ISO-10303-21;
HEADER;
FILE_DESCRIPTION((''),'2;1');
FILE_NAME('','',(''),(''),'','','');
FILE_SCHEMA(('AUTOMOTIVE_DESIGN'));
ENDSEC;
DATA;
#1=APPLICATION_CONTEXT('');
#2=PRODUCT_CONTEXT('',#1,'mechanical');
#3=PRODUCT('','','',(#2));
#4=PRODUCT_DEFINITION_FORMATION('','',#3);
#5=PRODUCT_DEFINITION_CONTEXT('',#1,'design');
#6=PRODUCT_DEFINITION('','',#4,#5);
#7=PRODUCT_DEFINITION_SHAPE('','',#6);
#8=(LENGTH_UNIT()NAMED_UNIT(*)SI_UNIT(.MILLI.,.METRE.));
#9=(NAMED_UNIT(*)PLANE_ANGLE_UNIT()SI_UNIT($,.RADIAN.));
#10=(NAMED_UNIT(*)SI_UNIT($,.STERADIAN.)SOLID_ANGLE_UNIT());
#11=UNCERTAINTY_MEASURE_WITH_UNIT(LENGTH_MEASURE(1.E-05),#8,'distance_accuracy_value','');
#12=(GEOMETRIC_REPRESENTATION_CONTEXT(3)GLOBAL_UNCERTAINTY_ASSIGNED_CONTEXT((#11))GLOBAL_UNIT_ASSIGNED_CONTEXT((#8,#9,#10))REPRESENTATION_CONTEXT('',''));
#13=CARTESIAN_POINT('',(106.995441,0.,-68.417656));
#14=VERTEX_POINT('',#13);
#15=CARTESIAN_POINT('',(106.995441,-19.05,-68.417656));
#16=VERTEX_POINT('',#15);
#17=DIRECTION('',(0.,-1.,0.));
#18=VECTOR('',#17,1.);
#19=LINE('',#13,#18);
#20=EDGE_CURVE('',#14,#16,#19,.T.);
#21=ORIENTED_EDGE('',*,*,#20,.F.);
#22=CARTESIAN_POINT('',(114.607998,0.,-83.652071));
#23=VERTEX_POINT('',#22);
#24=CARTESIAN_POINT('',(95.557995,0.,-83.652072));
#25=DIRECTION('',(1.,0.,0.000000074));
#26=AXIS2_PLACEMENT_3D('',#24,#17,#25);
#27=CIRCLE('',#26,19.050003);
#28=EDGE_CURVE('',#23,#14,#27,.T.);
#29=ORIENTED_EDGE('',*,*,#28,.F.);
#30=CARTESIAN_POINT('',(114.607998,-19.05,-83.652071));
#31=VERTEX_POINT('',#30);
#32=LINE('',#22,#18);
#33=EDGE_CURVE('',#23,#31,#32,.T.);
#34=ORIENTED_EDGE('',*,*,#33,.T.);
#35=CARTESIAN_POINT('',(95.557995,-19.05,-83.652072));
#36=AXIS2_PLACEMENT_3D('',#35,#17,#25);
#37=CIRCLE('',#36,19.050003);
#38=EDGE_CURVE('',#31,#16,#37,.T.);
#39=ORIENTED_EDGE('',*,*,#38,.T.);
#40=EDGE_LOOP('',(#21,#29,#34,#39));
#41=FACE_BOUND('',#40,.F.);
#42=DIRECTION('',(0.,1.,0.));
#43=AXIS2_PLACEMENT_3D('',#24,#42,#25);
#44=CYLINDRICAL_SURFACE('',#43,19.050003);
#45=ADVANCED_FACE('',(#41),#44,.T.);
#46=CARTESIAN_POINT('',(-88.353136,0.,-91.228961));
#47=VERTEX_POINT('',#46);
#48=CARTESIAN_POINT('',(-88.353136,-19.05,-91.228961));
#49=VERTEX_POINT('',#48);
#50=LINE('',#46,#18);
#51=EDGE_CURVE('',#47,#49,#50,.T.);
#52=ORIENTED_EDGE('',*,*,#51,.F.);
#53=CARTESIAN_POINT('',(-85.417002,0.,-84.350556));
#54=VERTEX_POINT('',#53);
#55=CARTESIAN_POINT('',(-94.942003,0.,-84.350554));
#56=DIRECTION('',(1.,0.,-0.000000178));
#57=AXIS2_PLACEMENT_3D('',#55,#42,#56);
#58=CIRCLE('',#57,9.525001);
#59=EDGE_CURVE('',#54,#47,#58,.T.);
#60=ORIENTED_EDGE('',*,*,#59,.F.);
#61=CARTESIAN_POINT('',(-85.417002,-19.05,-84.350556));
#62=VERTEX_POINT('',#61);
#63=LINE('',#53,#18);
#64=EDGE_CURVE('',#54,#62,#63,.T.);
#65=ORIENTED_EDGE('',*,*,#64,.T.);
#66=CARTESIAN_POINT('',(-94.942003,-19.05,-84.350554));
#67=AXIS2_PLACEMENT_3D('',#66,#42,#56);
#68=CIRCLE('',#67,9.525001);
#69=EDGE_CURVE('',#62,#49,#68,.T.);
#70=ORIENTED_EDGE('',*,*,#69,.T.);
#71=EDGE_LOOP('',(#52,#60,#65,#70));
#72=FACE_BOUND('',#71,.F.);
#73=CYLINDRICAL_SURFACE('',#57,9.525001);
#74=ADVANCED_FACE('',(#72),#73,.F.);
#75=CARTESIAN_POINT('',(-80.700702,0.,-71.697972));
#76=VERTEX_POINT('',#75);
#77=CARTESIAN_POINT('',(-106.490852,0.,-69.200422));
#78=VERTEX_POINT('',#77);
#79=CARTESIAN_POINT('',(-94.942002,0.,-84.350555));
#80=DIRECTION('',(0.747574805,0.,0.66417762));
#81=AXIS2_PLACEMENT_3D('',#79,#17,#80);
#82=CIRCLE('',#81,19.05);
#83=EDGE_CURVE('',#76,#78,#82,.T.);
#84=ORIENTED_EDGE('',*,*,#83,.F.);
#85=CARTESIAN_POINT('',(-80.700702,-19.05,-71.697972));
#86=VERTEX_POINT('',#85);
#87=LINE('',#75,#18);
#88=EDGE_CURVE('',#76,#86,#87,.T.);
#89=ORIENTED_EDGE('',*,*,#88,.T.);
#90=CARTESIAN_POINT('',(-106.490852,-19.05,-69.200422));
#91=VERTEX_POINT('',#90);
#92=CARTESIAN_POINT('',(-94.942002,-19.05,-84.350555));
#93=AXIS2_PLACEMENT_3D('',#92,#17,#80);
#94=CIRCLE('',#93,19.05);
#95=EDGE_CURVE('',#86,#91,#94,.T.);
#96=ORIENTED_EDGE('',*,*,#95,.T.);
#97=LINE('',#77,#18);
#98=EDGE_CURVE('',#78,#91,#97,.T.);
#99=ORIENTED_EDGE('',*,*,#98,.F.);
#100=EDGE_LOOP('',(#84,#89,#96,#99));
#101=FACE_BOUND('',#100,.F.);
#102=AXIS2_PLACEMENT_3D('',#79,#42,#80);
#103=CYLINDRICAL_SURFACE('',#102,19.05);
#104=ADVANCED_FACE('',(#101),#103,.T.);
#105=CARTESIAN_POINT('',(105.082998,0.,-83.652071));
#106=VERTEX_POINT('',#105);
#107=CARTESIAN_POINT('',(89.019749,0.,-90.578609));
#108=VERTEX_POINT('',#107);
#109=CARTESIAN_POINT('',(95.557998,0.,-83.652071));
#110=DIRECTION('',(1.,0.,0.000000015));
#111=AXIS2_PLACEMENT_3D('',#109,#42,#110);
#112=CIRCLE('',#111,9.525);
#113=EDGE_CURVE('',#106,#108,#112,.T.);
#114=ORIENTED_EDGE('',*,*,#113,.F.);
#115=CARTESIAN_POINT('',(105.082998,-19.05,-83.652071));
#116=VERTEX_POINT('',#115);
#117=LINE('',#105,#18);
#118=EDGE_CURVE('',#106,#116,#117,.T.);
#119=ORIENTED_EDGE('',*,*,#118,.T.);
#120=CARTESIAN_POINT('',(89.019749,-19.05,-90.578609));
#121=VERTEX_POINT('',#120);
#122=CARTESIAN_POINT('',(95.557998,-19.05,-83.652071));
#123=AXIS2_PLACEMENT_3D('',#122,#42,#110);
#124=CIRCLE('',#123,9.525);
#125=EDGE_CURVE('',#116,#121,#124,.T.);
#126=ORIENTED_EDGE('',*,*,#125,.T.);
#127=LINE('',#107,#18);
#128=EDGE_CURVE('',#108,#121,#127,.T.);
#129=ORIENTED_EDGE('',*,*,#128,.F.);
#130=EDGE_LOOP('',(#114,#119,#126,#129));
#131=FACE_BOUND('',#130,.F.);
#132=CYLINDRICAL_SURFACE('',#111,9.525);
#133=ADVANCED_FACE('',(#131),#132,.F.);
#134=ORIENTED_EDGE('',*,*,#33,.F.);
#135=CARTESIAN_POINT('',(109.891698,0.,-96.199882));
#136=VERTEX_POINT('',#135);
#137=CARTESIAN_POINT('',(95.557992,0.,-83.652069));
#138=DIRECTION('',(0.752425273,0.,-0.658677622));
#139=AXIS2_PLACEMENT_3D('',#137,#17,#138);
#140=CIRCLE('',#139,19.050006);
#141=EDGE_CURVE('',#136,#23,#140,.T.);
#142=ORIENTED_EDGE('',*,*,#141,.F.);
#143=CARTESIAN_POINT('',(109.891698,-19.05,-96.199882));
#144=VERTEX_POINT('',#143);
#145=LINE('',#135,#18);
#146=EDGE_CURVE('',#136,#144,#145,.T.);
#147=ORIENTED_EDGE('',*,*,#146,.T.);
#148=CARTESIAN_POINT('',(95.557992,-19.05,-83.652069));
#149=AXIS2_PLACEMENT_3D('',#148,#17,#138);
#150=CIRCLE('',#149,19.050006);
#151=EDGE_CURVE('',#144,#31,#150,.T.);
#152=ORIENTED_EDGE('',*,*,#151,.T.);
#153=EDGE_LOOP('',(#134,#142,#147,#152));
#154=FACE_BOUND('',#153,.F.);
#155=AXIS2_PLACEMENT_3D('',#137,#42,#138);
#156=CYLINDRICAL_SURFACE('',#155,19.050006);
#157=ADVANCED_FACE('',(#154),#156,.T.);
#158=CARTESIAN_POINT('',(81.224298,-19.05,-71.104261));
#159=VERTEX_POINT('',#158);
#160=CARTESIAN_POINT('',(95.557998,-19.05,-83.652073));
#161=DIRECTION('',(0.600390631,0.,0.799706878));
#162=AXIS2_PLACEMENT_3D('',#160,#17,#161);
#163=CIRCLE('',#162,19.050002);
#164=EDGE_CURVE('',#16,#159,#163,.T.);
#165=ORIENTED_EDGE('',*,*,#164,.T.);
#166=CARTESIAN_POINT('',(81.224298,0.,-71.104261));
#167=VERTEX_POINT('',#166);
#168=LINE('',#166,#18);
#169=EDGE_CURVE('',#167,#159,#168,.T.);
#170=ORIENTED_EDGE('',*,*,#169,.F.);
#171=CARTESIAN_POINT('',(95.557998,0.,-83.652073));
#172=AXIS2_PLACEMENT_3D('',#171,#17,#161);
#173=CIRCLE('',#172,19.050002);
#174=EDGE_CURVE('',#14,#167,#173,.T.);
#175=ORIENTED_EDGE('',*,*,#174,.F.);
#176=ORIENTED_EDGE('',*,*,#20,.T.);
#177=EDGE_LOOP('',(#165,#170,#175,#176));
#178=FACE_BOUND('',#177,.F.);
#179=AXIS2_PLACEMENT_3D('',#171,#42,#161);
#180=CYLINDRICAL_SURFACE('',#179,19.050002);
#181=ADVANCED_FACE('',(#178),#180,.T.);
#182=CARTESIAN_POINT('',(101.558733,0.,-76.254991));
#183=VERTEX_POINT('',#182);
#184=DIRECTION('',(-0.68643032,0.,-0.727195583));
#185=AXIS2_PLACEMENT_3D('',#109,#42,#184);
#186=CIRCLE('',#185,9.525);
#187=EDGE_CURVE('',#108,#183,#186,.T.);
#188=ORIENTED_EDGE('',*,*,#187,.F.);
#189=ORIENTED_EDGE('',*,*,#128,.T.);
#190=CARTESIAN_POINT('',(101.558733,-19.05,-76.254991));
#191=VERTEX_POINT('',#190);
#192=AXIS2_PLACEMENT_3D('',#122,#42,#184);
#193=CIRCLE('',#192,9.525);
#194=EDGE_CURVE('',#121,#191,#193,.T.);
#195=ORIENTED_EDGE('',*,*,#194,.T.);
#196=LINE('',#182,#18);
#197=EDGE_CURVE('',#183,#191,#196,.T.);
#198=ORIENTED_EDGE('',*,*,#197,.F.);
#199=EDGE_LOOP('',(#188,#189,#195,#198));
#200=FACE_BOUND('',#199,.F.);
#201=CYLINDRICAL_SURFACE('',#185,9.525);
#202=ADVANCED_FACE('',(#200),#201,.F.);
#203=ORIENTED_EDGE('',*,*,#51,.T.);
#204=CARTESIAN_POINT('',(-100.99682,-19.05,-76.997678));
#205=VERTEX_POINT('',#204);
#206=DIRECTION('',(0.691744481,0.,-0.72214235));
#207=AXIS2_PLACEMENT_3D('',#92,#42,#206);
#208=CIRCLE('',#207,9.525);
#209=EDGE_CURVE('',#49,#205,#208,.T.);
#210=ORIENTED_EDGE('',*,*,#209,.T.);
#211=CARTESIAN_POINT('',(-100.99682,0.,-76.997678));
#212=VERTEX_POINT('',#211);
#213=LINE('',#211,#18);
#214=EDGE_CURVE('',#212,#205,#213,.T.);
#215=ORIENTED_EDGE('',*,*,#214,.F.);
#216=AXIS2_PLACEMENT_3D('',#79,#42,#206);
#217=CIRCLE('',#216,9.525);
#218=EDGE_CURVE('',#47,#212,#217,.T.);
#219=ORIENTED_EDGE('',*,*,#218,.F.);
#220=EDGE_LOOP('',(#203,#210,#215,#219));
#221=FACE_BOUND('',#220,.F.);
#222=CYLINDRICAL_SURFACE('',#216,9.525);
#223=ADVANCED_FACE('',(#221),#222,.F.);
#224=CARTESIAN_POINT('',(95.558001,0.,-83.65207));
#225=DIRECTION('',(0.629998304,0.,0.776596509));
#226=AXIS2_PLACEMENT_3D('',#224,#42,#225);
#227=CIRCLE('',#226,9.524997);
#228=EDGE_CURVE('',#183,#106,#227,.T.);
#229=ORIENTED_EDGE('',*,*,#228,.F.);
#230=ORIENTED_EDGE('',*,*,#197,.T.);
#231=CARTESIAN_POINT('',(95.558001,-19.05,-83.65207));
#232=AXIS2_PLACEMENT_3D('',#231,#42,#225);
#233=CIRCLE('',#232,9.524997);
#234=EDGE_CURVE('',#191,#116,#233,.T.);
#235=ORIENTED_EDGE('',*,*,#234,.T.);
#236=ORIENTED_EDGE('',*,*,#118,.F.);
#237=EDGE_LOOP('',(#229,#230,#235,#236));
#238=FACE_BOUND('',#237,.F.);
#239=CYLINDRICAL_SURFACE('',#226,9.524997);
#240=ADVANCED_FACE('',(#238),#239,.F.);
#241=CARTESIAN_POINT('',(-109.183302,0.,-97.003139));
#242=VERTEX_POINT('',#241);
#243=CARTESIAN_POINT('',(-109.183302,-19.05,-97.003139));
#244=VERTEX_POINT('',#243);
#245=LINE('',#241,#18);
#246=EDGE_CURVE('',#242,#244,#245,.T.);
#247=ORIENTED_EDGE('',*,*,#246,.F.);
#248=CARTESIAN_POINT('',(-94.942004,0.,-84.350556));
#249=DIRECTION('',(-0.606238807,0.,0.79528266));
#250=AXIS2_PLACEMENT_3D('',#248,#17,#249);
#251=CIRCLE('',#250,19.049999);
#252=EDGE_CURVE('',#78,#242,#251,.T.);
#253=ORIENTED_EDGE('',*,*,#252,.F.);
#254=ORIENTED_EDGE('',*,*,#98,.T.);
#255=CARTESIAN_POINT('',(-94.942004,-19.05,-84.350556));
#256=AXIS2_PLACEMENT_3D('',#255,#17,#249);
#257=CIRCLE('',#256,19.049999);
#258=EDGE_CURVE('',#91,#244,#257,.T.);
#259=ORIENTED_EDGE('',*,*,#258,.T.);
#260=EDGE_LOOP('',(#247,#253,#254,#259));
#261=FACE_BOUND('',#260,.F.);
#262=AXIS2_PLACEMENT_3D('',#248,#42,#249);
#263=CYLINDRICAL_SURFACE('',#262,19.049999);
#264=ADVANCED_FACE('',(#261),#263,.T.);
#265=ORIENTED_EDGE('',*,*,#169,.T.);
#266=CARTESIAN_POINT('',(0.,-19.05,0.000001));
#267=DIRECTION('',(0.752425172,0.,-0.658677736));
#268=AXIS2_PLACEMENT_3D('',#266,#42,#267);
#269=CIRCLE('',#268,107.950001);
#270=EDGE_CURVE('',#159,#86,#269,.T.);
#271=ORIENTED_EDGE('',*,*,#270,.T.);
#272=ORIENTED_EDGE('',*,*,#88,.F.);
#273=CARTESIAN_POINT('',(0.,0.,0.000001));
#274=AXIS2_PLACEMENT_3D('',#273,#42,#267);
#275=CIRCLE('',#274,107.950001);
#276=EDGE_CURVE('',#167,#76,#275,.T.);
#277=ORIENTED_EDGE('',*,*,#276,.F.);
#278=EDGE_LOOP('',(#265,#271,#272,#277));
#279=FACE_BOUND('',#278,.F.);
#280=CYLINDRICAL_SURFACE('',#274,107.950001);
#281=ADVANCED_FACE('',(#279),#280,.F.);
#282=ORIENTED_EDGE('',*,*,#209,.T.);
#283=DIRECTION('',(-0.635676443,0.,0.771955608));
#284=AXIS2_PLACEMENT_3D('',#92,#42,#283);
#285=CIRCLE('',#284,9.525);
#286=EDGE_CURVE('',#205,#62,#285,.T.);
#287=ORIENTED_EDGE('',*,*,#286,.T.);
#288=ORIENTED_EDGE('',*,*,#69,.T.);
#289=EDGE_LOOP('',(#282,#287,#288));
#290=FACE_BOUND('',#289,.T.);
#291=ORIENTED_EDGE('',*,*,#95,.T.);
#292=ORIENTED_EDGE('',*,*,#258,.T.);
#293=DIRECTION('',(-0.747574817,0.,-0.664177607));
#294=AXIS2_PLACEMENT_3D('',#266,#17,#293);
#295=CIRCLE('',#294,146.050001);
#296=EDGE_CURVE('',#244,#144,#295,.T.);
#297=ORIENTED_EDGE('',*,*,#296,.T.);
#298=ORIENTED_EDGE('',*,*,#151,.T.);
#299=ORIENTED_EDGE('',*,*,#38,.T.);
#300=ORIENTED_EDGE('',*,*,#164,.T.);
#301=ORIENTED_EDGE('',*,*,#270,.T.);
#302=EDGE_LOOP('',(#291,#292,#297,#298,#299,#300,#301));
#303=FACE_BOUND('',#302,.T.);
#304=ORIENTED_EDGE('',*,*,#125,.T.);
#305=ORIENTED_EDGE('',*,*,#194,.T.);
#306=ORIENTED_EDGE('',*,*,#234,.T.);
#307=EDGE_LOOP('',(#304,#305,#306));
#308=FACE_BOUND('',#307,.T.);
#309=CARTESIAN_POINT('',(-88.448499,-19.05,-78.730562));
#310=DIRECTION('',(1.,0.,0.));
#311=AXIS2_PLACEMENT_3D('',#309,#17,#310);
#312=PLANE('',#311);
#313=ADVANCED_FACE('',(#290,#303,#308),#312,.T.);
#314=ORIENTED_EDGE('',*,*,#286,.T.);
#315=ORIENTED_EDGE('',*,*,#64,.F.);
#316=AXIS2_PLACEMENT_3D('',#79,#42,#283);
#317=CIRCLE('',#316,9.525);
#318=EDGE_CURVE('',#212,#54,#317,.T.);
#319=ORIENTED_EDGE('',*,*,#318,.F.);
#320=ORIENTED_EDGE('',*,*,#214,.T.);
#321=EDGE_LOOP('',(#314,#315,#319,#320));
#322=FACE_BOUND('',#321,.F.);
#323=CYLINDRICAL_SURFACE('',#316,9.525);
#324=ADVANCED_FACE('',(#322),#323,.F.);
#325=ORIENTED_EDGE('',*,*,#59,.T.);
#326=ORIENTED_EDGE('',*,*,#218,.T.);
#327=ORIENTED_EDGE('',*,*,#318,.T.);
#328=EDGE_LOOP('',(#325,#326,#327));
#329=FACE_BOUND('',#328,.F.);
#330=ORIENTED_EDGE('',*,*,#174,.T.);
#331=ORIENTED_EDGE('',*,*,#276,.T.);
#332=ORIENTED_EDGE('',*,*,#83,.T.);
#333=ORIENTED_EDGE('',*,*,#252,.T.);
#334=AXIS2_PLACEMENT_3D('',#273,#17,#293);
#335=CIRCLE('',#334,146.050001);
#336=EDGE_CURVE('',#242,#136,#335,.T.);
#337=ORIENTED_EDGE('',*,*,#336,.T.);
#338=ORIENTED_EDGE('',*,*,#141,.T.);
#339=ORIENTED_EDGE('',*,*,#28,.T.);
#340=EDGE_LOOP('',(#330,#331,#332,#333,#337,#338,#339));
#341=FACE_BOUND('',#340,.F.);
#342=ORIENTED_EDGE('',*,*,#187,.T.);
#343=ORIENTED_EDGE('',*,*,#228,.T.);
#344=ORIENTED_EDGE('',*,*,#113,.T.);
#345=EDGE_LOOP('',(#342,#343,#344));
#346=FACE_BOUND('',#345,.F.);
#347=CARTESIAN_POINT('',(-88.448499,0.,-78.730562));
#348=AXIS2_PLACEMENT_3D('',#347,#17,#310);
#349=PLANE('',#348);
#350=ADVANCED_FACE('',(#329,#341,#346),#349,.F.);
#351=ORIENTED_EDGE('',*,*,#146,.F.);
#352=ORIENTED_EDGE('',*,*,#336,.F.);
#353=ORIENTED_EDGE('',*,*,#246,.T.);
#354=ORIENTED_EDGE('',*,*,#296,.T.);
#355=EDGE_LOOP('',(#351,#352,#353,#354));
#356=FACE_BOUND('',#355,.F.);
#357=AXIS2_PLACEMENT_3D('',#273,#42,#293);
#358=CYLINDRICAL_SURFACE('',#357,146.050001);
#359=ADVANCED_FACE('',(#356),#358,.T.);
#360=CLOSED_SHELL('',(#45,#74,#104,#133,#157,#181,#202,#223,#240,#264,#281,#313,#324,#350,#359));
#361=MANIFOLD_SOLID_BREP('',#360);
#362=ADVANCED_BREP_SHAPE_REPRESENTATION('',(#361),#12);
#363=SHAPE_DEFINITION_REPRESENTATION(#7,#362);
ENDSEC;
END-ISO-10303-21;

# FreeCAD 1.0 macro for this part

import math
import FreeCAD as App
import Part
import Sketcher

V = App.Vector
Q = App.Units.Quantity

doc = App.newDocument("Part")
body = doc.addObject("PartDesign::Body", "Body")

# Sketch on XZ plane
sketch1 = body.newObject("Sketcher::SketchObject", "Sketch")
sketch1.AttachmentSupport = (doc.getObject("XZ_Plane"), [""])
sketch1.MapMode = "FlatFace"
sketch1.addGeometry([
    Part.ArcOfCircle(Part.Circle(V(-95, -84, 0), V(0, 0, 1), 19), math.radians(42), math.radians(127)),  # 0
    Part.ArcOfCircle(Part.Circle(V(-95, -84, 0), V(0, 0, 1), 19), math.radians(127), math.radians(222)),  # 1
    Part.ArcOfCircle(Part.Circle(V(0, 0, 0), V(0, 0, 1), 146), math.radians(-138), math.radians(-41)),  # 2
    Part.ArcOfCircle(Part.Circle(V(96, -84, 0), V(0, 0, 1), 19), math.radians(-41), math.radians(0)),  # 3
    Part.ArcOfCircle(Part.Circle(V(96, -84, 0), V(0, 0, 1), 19), math.radians(0), math.radians(53)),  # 4
    Part.ArcOfCircle(Part.Circle(V(96, -84, 0), V(0, 0, 1), 19), math.radians(53), math.radians(139)),  # 5
    Part.ArcOfCircle(Part.Circle(V(0, 0, 0), V(0, 0, 1), 108), math.radians(-138), math.radians(-41)),  # 6
    Part.ArcOfCircle(Part.Circle(V(96, -84, 0), V(0, 0, 1), 10), math.radians(51), math.radians(227)),  # 7
    Part.ArcOfCircle(Part.Circle(V(96, -84, 0), V(0, 0, 1), 10), math.radians(0), math.radians(51)),  # 8
    Part.ArcOfCircle(Part.Circle(V(96, -84, 0), V(0, 0, 1), 10), math.radians(-133), math.radians(0)),  # 9
    Part.ArcOfCircle(Part.Circle(V(-95, -84, 0), V(0, 0, 1), 10), math.radians(0), math.radians(129)),  # 10
    Part.ArcOfCircle(Part.Circle(V(-95, -84, 0), V(0, 0, 1), 10), math.radians(-46), math.radians(0)),  # 11
    Part.ArcOfCircle(Part.Circle(V(-95, -84, 0), V(0, 0, 1), 10), math.radians(129), math.radians(314)),  # 12
], False)
sketch1.addConstraint([
    Sketcher.Constraint("Tangent", 0, 2, 1, 1),
    Sketcher.Constraint("Tangent", 1, 2, 2, 1),
    Sketcher.Constraint("Tangent", 2, 2, 3, 1),
    Sketcher.Constraint("Tangent", 3, 2, 4, 1),
    Sketcher.Constraint("Tangent", 4, 2, 5, 1),
    Sketcher.Constraint("Tangent", 5, 2, 6, 2),
    Sketcher.Constraint("Tangent", 6, 1, 0, 1),
    Sketcher.Constraint("Tangent", 7, 1, 8, 2),
    Sketcher.Constraint("Tangent", 8, 1, 9, 2),
    Sketcher.Constraint("Tangent", 9, 1, 7, 2),
    Sketcher.Constraint("Tangent", 10, 1, 11, 2),
    Sketcher.Constraint("Tangent", 11, 1, 12, 2),
    Sketcher.Constraint("Tangent", 12, 1, 10, 2),
    Sketcher.Constraint("Coincident", 2, 3, -1, 1),
    Sketcher.Constraint("Coincident", 6, 3, -1, 1),
    Sketcher.Constraint("Coincident", 5, 3, 3, 3),
    Sketcher.Constraint("Coincident", 7, 3, 3, 3),
    Sketcher.Constraint("Coincident", 10, 3, 0, 3),
    Sketcher.Constraint("Equal", 0, 1),
    Sketcher.Constraint("Equal", 9, 10),
    Sketcher.Constraint("Horizontal", 9, 3, 3, 2),
    Sketcher.Constraint("Horizontal", 3, 2, 8, 1),
    Sketcher.Constraint("Horizontal", 12, 3, 10, 1),
    Sketcher.Constraint("Radius", 0, Q("0.75 in")),
    Sketcher.Constraint("Radius", 2, Q("5.75 in")),
    Sketcher.Constraint("Radius", 7, Q("0.375 in")),
    Sketcher.Constraint("DistanceX", 1, 3, 3, 3, Q("7.4999998 in")),
    Sketcher.Constraint("DistanceX", 0, 3, -1, 1, Q("94.942002 mm")),
    Sketcher.Constraint("DistanceX", 0, 2, -1, 1, Q("106.490852 mm")),
    Sketcher.Constraint("DistanceX", -1, 1, 4, 2, Q("106.995441 mm")),
    Sketcher.Constraint("DistanceY", 7, 1, -1, 1, Q("76.254991 mm")),
    Sketcher.Constraint("DistanceX", -1, 1, 9, 1, Q("89.019749 mm")),
    Sketcher.Constraint("DistanceY", 11, 1, -1, 1, Q("91.228961 mm")),
    Sketcher.Constraint("DistanceX", 12, 1, -1, 1, Q("100.99682 mm")),
])
pad1 = body.newObject("PartDesign::Pad", "Pad")
pad1.Profile = sketch1
pad1.Length = Q("0.75 in")

doc.recompute()
